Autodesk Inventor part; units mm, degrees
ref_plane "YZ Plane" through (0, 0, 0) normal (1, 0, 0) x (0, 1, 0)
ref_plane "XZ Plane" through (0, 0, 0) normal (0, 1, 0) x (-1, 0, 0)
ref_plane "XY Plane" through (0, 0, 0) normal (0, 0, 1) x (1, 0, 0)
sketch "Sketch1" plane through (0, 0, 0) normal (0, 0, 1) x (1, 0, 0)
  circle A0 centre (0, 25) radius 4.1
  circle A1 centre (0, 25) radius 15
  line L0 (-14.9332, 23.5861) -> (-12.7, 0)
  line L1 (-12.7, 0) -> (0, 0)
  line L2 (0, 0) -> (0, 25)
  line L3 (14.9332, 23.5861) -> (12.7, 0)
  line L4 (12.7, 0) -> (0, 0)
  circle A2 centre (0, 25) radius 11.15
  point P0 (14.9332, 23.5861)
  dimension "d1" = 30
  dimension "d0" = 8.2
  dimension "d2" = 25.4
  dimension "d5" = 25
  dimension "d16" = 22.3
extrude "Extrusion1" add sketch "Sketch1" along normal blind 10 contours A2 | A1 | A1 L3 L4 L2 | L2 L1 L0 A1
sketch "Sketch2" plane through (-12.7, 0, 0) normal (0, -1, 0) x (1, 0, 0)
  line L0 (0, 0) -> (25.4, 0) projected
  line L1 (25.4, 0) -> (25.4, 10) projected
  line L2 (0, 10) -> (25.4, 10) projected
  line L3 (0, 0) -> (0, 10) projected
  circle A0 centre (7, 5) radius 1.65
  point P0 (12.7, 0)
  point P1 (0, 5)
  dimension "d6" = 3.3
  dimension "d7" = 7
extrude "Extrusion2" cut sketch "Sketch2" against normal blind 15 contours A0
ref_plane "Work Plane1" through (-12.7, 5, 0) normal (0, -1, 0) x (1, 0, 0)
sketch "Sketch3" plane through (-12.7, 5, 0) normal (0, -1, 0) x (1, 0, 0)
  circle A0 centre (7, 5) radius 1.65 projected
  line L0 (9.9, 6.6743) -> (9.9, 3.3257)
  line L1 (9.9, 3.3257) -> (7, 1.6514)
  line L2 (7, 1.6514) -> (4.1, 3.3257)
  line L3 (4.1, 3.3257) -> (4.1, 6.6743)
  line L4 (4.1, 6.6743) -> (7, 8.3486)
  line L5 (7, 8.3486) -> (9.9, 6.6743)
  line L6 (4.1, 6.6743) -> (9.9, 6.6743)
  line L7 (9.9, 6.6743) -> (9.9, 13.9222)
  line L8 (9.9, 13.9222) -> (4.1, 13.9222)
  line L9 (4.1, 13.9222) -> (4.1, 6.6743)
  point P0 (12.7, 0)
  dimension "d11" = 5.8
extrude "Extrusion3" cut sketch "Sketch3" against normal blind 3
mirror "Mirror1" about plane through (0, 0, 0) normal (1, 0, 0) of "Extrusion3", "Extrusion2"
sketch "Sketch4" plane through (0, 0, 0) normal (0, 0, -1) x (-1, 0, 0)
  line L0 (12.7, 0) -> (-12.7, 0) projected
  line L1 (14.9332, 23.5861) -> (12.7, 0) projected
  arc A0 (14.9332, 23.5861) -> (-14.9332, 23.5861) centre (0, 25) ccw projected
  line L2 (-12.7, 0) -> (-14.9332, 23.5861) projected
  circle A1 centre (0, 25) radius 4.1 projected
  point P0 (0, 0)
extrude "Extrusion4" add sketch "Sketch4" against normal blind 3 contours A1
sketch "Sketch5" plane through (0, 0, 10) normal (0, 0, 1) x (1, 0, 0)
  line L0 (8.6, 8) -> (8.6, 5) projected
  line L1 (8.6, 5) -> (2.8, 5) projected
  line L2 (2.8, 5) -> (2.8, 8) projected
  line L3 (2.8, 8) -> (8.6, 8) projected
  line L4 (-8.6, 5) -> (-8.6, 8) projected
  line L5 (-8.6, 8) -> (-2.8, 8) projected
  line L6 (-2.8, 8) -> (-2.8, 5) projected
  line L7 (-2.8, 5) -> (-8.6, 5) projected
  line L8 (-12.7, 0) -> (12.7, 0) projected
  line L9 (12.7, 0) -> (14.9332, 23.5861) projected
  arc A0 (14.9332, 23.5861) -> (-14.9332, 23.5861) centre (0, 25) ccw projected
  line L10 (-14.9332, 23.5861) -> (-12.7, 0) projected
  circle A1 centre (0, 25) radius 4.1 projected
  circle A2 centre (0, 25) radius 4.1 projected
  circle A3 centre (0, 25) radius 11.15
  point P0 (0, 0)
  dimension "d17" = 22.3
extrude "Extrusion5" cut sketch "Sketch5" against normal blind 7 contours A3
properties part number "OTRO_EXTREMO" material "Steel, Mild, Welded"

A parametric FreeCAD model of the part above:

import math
import FreeCAD as App
import Part
import Sketcher
Q = App.Units.Quantity

doc = App.newDocument("Part")
params = doc.addObject("Spreadsheet::Sheet", "Params")
for row, (alias, value) in enumerate([
    ("sketch1_radius", "15 mm"),
    ("sketch1_diameter", "8.2 mm"),
    ("sketch1_width", "25.4 mm"),
    ("pad1_length", "10 mm"),
    ("sketch2_diameter", "3.3 mm"),
    ("pocket1_length", "15 mm"),
    ("sketch3_width", "5.8 mm"),
    ("sketch3_diameter", "3.3 mm"),
    ("pocket2_length", "3 mm"),
    ("sketch4_diameter", "8.2 mm"),
    ("pad2_length", "3 mm"),
    ("sketch5_diameter", "22.3 mm"),
    ("sketch5_diameter2", "8.2 mm"),
    ("pocket3_length", "7 mm"),
], start=1):
    params.set(f"A{row}", alias)
    params.set(f"B{row}", "=" + value)
    params.setAlias(f"B{row}", alias)

body = doc.addObject("PartDesign::Body", "Body")

# Sketch on XY plane
sketch1 = doc.addObject("Sketcher::SketchObject", "Sketch")
body.addObject(sketch1)
sketch1.AttachmentSupport = (doc.XY_Plane, [""])
sketch1.MapMode = "FlatFace"
sketch1.addGeometry(Part.LineSegment(App.Vector(-14.9, 23.6, 0), App.Vector(-12.7, 0, 0)), False)
sketch1.addGeometry(Part.LineSegment(App.Vector(-12.7, 0, 0), App.Vector(12.7, 0, 0)), False)
sketch1.addGeometry(Part.LineSegment(App.Vector(12.7, 0, 0), App.Vector(14.9, 23.6, 0)), False)
sketch1.addGeometry(Part.ArcOfCircle(Part.Circle(App.Vector(0, 25, 0), App.Vector(0, 0, 1), 15), math.radians(-5), math.radians(185)), False)
sketch1.addGeometry(Part.Circle(App.Vector(0, 25, 0), App.Vector(0, 0, 1), 4.1), False)
sketch1.addConstraint(Sketcher.Constraint("Coincident", 0, 2, 1, 1))
sketch1.addConstraint(Sketcher.Constraint("Coincident", 1, 2, 2, 1))
sketch1.addConstraint(Sketcher.Constraint("Tangent", 2, 2, 3, 1))
sketch1.addConstraint(Sketcher.Constraint("Tangent", 3, 2, 0, 1))
sketch1.addConstraint(Sketcher.Constraint("Horizontal", 1))
sketch1.addConstraint(Sketcher.Constraint("Coincident", 4, 3, 3, 3))
sketch1.addConstraint(Sketcher.Constraint("Symmetric", 0, 2, 1, 2, -1, 1))
sketch1.addConstraint(Sketcher.Constraint("PointOnObject", 3, 3, -2))
sketch1.addConstraint(Sketcher.Constraint("Radius", 3, 15.0))
sketch1.addConstraint(Sketcher.Constraint("Diameter", 4, 8.2))
sketch1.addConstraint(Sketcher.Constraint("DistanceX", 1, 1, 1, 2, 25.4))
sketch1.addConstraint(Sketcher.Constraint("DistanceY", -1, 1, 3, 3, 25.0))
sketch1.setExpression("Constraints[8]", "Params.sketch1_radius")
sketch1.setExpression("Constraints[9]", "Params.sketch1_diameter")
sketch1.setExpression("Constraints[10]", "Params.sketch1_width")
pad1 = doc.addObject("PartDesign::Pad", "Pad")
body.addObject(pad1)
pad1.Profile = sketch1
pad1.setExpression("Length", "Params.pad1_length")

# Sketch on XZ plane
sketch2 = doc.addObject("Sketcher::SketchObject", "Sketch001")
body.addObject(sketch2)
sketch2.AttachmentSupport = (doc.XZ_Plane, [""])
sketch2.MapMode = "FlatFace"
sketch2.addGeometry(Part.Circle(App.Vector(-5.7, 5, 0), App.Vector(0, 0, 1), 1.6), False)
sketch2.addConstraint(Sketcher.Constraint("Diameter", 0, 3.3))
sketch2.addConstraint(Sketcher.Constraint("DistanceY", -1, 1, 0, 3, 5.0))
sketch2.addConstraint(Sketcher.Constraint("DistanceX", 0, 3, -1, 1, 5.7))
sketch2.setExpression("Constraints[0]", "Params.sketch2_diameter")
pocket1 = doc.addObject("PartDesign::Pocket", "Pocket")
body.addObject(pocket1)
pocket1.Profile = sketch2
pocket1.setExpression("Length", "Params.pocket1_length")

# Sketch on XZ plane
sketch3 = doc.addObject("Sketcher::SketchObject", "Sketch002")
body.addObject(sketch3)
sketch3.AttachmentSupport = (doc.XZ_Plane, [""])
sketch3.MapMode = "FlatFace"
sketch3.AttachmentOffset = App.Placement(App.Vector(0, 0, -5), App.Rotation())
sketch3.addGeometry(Part.LineSegment(App.Vector(-2.8, 3.3, 0), App.Vector(-2.8, 13.9, 0)), False)
sketch3.addGeometry(Part.LineSegment(App.Vector(-2.8, 13.9, 0), App.Vector(-8.6, 13.9, 0)), False)
sketch3.addGeometry(Part.LineSegment(App.Vector(-8.6, 13.9, 0), App.Vector(-8.6, 3.3, 0)), False)
sketch3.addGeometry(Part.LineSegment(App.Vector(-8.6, 3.3, 0), App.Vector(-5.7, 1.7, 0)), False)
sketch3.addGeometry(Part.LineSegment(App.Vector(-5.7, 1.7, 0), App.Vector(-2.8, 3.3, 0)), False)
sketch3.addGeometry(Part.Circle(App.Vector(-5.7, 5, 0), App.Vector(0, 0, 1), 1.6), False)
sketch3.addConstraint(Sketcher.Constraint("Coincident", 0, 2, 1, 1))
sketch3.addConstraint(Sketcher.Constraint("Coincident", 1, 2, 2, 1))
sketch3.addConstraint(Sketcher.Constraint("Coincident", 2, 2, 3, 1))
sketch3.addConstraint(Sketcher.Constraint("Coincident", 3, 2, 4, 1))
sketch3.addConstraint(Sketcher.Constraint("Coincident", 4, 2, 0, 1))
sketch3.addConstraint(Sketcher.Constraint("Vertical", 0))
sketch3.addConstraint(Sketcher.Constraint("Horizontal", 1))
sketch3.addConstraint(Sketcher.Constraint("Vertical", 2))
sketch3.addConstraint(Sketcher.Constraint("Horizontal", 2, 2, 4, 2))
sketch3.addConstraint(Sketcher.Constraint("Vertical", 5, 3, 3, 2))
sketch3.addConstraint(Sketcher.Constraint("Equal", 3, 4))
sketch3.addConstraint(Sketcher.Constraint("DistanceX", 1, 2, 1, 1, 5.8))
sketch3.addConstraint(Sketcher.Constraint("Diameter", 5, 3.3))
sketch3.addConstraint(Sketcher.Constraint("Angle", 3, Q("-29.9998 deg")))
sketch3.addConstraint(Sketcher.Constraint("DistanceY", -1, 1, 5, 3, 5.0))
sketch3.addConstraint(Sketcher.Constraint("DistanceX", 5, 3, -1, 1, 5.7))
sketch3.addConstraint(Sketcher.Constraint("DistanceY", 0, 1, 0, 2, 10.5965))
sketch3.addConstraint(Sketcher.Constraint("DistanceY", -1, 1, 0, 2, 13.9222))
sketch3.setExpression("Constraints[11]", "Params.sketch3_width")
sketch3.setExpression("Constraints[12]", "Params.sketch3_diameter")
pocket2 = doc.addObject("PartDesign::Pocket", "Pocket001")
body.addObject(pocket2)
pocket2.Profile = sketch3
pocket2.setExpression("Length", "Params.pocket2_length")
doc.recompute()

mirrored = doc.addObject("PartDesign::Mirrored", "Mirrored")
body.addObject(mirrored)
mirrored.Originals = [pocket2, pocket1]
mirrored.MirrorPlane = (doc.YZ_Plane, [""])
body.Tip = mirrored

# Sketch on XY plane
sketch4 = doc.addObject("Sketcher::SketchObject", "Sketch003")
body.addObject(sketch4)
sketch4.AttachmentSupport = (doc.XY_Plane, [""])
sketch4.MapMode = "FlatFace"
sketch4.addGeometry(Part.Circle(App.Vector(0, 25, 0), App.Vector(0, 0, 1), 4.1), False)
sketch4.addConstraint(Sketcher.Constraint("PointOnObject", 0, 3, -2))
sketch4.addConstraint(Sketcher.Constraint("Diameter", 0, 8.2))
sketch4.addConstraint(Sketcher.Constraint("DistanceY", -1, 1, 0, 3, 25.0))
sketch4.setExpression("Constraints[1]", "Params.sketch4_diameter")
pad2 = doc.addObject("PartDesign::Pad", "Pad001")
body.addObject(pad2)
pad2.Profile = sketch4
pad2.setExpression("Length", "Params.pad2_length")

# Sketch on XY plane
sketch5 = doc.addObject("Sketcher::SketchObject", "Sketch004")
body.addObject(sketch5)
sketch5.AttachmentSupport = (doc.XY_Plane, [""])
sketch5.MapMode = "FlatFace"
sketch5.AttachmentOffset = App.Placement(App.Vector(0, 0, 10), App.Rotation())
sketch5.addGeometry(Part.Circle(App.Vector(0, 25, 0), App.Vector(0, 0, 1), 11.2), False)
sketch5.addGeometry(Part.Circle(App.Vector(0, 25, 0), App.Vector(0, 0, 1), 4.1), False)
sketch5.addConstraint(Sketcher.Constraint("Coincident", 1, 3, 0, 3))
sketch5.addConstraint(Sketcher.Constraint("PointOnObject", 0, 3, -2))
sketch5.addConstraint(Sketcher.Constraint("Diameter", 0, 22.3))
sketch5.addConstraint(Sketcher.Constraint("Diameter", 1, 8.2))
sketch5.addConstraint(Sketcher.Constraint("DistanceY", -1, 1, 0, 3, 25.0))
sketch5.setExpression("Constraints[2]", "Params.sketch5_diameter")
sketch5.setExpression("Constraints[3]", "Params.sketch5_diameter2")
pocket3 = doc.addObject("PartDesign::Pocket", "Pocket002")
body.addObject(pocket3)
pocket3.Profile = sketch5
pocket3.setExpression("Length", "Params.pocket3_length")

doc.recompute()
